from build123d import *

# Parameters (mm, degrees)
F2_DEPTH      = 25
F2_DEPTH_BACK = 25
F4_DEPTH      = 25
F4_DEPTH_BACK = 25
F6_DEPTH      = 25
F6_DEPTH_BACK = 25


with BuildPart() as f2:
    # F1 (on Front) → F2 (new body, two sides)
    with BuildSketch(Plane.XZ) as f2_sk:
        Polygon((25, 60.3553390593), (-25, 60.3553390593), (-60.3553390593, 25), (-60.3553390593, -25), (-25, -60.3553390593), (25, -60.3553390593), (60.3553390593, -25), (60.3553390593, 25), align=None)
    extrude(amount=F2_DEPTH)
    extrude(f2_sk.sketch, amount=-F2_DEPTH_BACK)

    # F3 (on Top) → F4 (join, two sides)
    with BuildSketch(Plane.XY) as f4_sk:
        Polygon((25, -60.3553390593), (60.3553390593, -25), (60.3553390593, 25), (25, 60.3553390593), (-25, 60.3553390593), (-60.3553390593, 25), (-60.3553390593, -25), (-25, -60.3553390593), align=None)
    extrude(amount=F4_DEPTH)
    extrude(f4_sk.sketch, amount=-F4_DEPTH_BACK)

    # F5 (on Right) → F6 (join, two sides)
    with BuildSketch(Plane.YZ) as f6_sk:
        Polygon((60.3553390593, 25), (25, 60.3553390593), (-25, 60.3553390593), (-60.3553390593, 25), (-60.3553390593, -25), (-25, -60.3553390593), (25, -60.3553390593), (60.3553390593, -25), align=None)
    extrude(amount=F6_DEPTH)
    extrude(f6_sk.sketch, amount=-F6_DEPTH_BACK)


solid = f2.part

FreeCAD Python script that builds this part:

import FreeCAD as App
import Part
import Sketcher
Q = App.Units.Quantity

doc = App.newDocument("Part")
body = doc.addObject("PartDesign::Body", "Body")

# Sketch on XZ plane
sketch1 = doc.addObject("Sketcher::SketchObject", "Sketch")
body.addObject(sketch1)
sketch1.AttachmentSupport = (doc.XZ_Plane, [""])
sketch1.MapMode = "FlatFace"
sketch1.addGeometry([
    Part.LineSegment(App.Vector(25, 60, 0), App.Vector(-25, 60, 0)),  # 0
    Part.LineSegment(App.Vector(-25, 60, 0), App.Vector(-60, 25, 0)),  # 1
    Part.LineSegment(App.Vector(-60, 25, 0), App.Vector(-60, -25, 0)),  # 2
    Part.LineSegment(App.Vector(-60, -25, 0), App.Vector(-25, -60, 0)),  # 3
    Part.LineSegment(App.Vector(-25, -60, 0), App.Vector(25, -60, 0)),  # 4
    Part.LineSegment(App.Vector(25, -60, 0), App.Vector(60, -25, 0)),  # 5
    Part.LineSegment(App.Vector(60, -25, 0), App.Vector(60, 25, 0)),  # 6
    Part.LineSegment(App.Vector(60, 25, 0), App.Vector(25, 60, 0)),  # 7
], False)
sketch1.addConstraint([
    Sketcher.Constraint("Coincident", 0, 2, 1, 1),
    Sketcher.Constraint("Coincident", 1, 2, 2, 1),
    Sketcher.Constraint("Coincident", 2, 2, 3, 1),
    Sketcher.Constraint("Coincident", 3, 2, 4, 1),
    Sketcher.Constraint("Coincident", 4, 2, 5, 1),
    Sketcher.Constraint("Coincident", 5, 2, 6, 1),
    Sketcher.Constraint("Coincident", 6, 2, 7, 1),
    Sketcher.Constraint("Coincident", 7, 2, 0, 1),
    Sketcher.Constraint("Horizontal", 0),
    Sketcher.Constraint("Vertical", 2),
    Sketcher.Constraint("Horizontal", 4),
    Sketcher.Constraint("Vertical", 6),
    Sketcher.Constraint("Symmetric", 0, 2, 4, 2, -1, 1),
    Sketcher.Constraint("Symmetric", 1, 2, 5, 2, -1, 1),
    Sketcher.Constraint("Perpendicular", 1, 3),
    Sketcher.Constraint("Perpendicular", 5, 7),
    Sketcher.Constraint("Horizontal", 2, 2, 5, 2),
    Sketcher.Constraint("Horizontal", 1, 2, 6, 2),
    Sketcher.Constraint("Vertical", 0, 2, 3, 2),
    Sketcher.Constraint("Equal", 4, 2),
    Sketcher.Constraint("DistanceX", 0, 2, 0, 1, Q("50 mm")),
    Sketcher.Constraint("Distance", 1, Q("50 mm")),
])
pad1 = doc.addObject("PartDesign::Pad", "Pad")
body.addObject(pad1)
pad1.Profile = sketch1
pad1.Type = "TwoLengths"
pad1.Length = 25
pad1.Length2 = 25

# Sketch on XY plane
sketch2 = doc.addObject("Sketcher::SketchObject", "Sketch001")
body.addObject(sketch2)
sketch2.AttachmentSupport = (doc.XY_Plane, [""])
sketch2.MapMode = "FlatFace"
sketch2.addGeometry([
    Part.LineSegment(App.Vector(25, -60, 0), App.Vector(60, -25, 0)),  # 0
    Part.LineSegment(App.Vector(60, -25, 0), App.Vector(60, 25, 0)),  # 1
    Part.LineSegment(App.Vector(60, 25, 0), App.Vector(25, 60, 0)),  # 2
    Part.LineSegment(App.Vector(25, 60, 0), App.Vector(-25, 60, 0)),  # 3
    Part.LineSegment(App.Vector(-25, 60, 0), App.Vector(-60, 25, 0)),  # 4
    Part.LineSegment(App.Vector(-60, 25, 0), App.Vector(-60, -25, 0)),  # 5
    Part.LineSegment(App.Vector(-60, -25, 0), App.Vector(-25, -60, 0)),  # 6
    Part.LineSegment(App.Vector(-25, -60, 0), App.Vector(25, -60, 0)),  # 7
], False)
sketch2.addConstraint([
    Sketcher.Constraint("Coincident", 0, 2, 1, 1),
    Sketcher.Constraint("Coincident", 1, 2, 2, 1),
    Sketcher.Constraint("Coincident", 2, 2, 3, 1),
    Sketcher.Constraint("Coincident", 3, 2, 4, 1),
    Sketcher.Constraint("Coincident", 4, 2, 5, 1),
    Sketcher.Constraint("Coincident", 5, 2, 6, 1),
    Sketcher.Constraint("Coincident", 6, 2, 7, 1),
    Sketcher.Constraint("Coincident", 7, 2, 0, 1),
    Sketcher.Constraint("Vertical", 1),
    Sketcher.Constraint("Horizontal", 3),
    Sketcher.Constraint("Vertical", 5),
    Sketcher.Constraint("Horizontal", 7),
    Sketcher.Constraint("Symmetric", 0, 2, 4, 2, -1, 1),
    Sketcher.Constraint("Symmetric", 2, 2, 6, 2, -1, 1),
    Sketcher.Constraint("Perpendicular", 0, 2),
    Sketcher.Constraint("Perpendicular", 2, 4),
    Sketcher.Constraint("Perpendicular", 4, 6),
    Sketcher.Constraint("Horizontal", 1, 2, 4, 2),
    Sketcher.Constraint("Vertical", 3, 2, 6, 2),
    Sketcher.Constraint("Equal", 7, 1),
    Sketcher.Constraint("DistanceX", 3, 2, 3, 1, Q("50 mm")),
    Sketcher.Constraint("Distance", 0, Q("50 mm")),
])
pad2 = doc.addObject("PartDesign::Pad", "Pad001")
body.addObject(pad2)
pad2.Profile = sketch2
pad2.Type = "TwoLengths"
pad2.Length = 25
pad2.Length2 = 25

# Sketch on YZ plane
sketch3 = doc.addObject("Sketcher::SketchObject", "Sketch002")
body.addObject(sketch3)
sketch3.AttachmentSupport = (doc.YZ_Plane, [""])
sketch3.MapMode = "FlatFace"
sketch3.addGeometry([
    Part.LineSegment(App.Vector(60, 25, 0), App.Vector(25, 60, 0)),  # 0
    Part.LineSegment(App.Vector(25, 60, 0), App.Vector(-25, 60, 0)),  # 1
    Part.LineSegment(App.Vector(-25, 60, 0), App.Vector(-60, 25, 0)),  # 2
    Part.LineSegment(App.Vector(-60, 25, 0), App.Vector(-60, -25, 0)),  # 3
    Part.LineSegment(App.Vector(-60, -25, 0), App.Vector(-25, -60, 0)),  # 4
    Part.LineSegment(App.Vector(-25, -60, 0), App.Vector(25, -60, 0)),  # 5
    Part.LineSegment(App.Vector(25, -60, 0), App.Vector(60, -25, 0)),  # 6
    Part.LineSegment(App.Vector(60, -25, 0), App.Vector(60, 25, 0)),  # 7
], False)
sketch3.addConstraint([
    Sketcher.Constraint("Coincident", 0, 2, 1, 1),
    Sketcher.Constraint("Coincident", 1, 2, 2, 1),
    Sketcher.Constraint("Coincident", 2, 2, 3, 1),
    Sketcher.Constraint("Coincident", 3, 2, 4, 1),
    Sketcher.Constraint("Coincident", 4, 2, 5, 1),
    Sketcher.Constraint("Coincident", 5, 2, 6, 1),
    Sketcher.Constraint("Coincident", 6, 2, 7, 1),
    Sketcher.Constraint("Coincident", 7, 2, 0, 1),
    Sketcher.Constraint("Horizontal", 1),
    Sketcher.Constraint("Vertical", 3),
    Sketcher.Constraint("Horizontal", 5),
    Sketcher.Constraint("Vertical", 7),
    Sketcher.Constraint("Symmetric", 0, 2, 4, 2, -1, 1),
    Sketcher.Constraint("Symmetric", 2, 2, 6, 2, -1, 1),
    Sketcher.Constraint("Perpendicular", 0, 2),
    Sketcher.Constraint("Perpendicular", 2, 4),
    Sketcher.Constraint("Perpendicular", 4, 6),
    Sketcher.Constraint("Horizontal", 3, 2, 6, 2),
    Sketcher.Constraint("Vertical", 1, 2, 4, 2),
    Sketcher.Constraint("Equal", 5, 3),
    Sketcher.Constraint("DistanceX", 1, 2, 1, 1, Q("50 mm")),
    Sketcher.Constraint("Distance", 0, Q("50 mm")),
])
pad3 = doc.addObject("PartDesign::Pad", "Pad002")
body.addObject(pad3)
pad3.Profile = sketch3
pad3.Type = "TwoLengths"
pad3.Length = 25
pad3.Length2 = 25

doc.recompute()
